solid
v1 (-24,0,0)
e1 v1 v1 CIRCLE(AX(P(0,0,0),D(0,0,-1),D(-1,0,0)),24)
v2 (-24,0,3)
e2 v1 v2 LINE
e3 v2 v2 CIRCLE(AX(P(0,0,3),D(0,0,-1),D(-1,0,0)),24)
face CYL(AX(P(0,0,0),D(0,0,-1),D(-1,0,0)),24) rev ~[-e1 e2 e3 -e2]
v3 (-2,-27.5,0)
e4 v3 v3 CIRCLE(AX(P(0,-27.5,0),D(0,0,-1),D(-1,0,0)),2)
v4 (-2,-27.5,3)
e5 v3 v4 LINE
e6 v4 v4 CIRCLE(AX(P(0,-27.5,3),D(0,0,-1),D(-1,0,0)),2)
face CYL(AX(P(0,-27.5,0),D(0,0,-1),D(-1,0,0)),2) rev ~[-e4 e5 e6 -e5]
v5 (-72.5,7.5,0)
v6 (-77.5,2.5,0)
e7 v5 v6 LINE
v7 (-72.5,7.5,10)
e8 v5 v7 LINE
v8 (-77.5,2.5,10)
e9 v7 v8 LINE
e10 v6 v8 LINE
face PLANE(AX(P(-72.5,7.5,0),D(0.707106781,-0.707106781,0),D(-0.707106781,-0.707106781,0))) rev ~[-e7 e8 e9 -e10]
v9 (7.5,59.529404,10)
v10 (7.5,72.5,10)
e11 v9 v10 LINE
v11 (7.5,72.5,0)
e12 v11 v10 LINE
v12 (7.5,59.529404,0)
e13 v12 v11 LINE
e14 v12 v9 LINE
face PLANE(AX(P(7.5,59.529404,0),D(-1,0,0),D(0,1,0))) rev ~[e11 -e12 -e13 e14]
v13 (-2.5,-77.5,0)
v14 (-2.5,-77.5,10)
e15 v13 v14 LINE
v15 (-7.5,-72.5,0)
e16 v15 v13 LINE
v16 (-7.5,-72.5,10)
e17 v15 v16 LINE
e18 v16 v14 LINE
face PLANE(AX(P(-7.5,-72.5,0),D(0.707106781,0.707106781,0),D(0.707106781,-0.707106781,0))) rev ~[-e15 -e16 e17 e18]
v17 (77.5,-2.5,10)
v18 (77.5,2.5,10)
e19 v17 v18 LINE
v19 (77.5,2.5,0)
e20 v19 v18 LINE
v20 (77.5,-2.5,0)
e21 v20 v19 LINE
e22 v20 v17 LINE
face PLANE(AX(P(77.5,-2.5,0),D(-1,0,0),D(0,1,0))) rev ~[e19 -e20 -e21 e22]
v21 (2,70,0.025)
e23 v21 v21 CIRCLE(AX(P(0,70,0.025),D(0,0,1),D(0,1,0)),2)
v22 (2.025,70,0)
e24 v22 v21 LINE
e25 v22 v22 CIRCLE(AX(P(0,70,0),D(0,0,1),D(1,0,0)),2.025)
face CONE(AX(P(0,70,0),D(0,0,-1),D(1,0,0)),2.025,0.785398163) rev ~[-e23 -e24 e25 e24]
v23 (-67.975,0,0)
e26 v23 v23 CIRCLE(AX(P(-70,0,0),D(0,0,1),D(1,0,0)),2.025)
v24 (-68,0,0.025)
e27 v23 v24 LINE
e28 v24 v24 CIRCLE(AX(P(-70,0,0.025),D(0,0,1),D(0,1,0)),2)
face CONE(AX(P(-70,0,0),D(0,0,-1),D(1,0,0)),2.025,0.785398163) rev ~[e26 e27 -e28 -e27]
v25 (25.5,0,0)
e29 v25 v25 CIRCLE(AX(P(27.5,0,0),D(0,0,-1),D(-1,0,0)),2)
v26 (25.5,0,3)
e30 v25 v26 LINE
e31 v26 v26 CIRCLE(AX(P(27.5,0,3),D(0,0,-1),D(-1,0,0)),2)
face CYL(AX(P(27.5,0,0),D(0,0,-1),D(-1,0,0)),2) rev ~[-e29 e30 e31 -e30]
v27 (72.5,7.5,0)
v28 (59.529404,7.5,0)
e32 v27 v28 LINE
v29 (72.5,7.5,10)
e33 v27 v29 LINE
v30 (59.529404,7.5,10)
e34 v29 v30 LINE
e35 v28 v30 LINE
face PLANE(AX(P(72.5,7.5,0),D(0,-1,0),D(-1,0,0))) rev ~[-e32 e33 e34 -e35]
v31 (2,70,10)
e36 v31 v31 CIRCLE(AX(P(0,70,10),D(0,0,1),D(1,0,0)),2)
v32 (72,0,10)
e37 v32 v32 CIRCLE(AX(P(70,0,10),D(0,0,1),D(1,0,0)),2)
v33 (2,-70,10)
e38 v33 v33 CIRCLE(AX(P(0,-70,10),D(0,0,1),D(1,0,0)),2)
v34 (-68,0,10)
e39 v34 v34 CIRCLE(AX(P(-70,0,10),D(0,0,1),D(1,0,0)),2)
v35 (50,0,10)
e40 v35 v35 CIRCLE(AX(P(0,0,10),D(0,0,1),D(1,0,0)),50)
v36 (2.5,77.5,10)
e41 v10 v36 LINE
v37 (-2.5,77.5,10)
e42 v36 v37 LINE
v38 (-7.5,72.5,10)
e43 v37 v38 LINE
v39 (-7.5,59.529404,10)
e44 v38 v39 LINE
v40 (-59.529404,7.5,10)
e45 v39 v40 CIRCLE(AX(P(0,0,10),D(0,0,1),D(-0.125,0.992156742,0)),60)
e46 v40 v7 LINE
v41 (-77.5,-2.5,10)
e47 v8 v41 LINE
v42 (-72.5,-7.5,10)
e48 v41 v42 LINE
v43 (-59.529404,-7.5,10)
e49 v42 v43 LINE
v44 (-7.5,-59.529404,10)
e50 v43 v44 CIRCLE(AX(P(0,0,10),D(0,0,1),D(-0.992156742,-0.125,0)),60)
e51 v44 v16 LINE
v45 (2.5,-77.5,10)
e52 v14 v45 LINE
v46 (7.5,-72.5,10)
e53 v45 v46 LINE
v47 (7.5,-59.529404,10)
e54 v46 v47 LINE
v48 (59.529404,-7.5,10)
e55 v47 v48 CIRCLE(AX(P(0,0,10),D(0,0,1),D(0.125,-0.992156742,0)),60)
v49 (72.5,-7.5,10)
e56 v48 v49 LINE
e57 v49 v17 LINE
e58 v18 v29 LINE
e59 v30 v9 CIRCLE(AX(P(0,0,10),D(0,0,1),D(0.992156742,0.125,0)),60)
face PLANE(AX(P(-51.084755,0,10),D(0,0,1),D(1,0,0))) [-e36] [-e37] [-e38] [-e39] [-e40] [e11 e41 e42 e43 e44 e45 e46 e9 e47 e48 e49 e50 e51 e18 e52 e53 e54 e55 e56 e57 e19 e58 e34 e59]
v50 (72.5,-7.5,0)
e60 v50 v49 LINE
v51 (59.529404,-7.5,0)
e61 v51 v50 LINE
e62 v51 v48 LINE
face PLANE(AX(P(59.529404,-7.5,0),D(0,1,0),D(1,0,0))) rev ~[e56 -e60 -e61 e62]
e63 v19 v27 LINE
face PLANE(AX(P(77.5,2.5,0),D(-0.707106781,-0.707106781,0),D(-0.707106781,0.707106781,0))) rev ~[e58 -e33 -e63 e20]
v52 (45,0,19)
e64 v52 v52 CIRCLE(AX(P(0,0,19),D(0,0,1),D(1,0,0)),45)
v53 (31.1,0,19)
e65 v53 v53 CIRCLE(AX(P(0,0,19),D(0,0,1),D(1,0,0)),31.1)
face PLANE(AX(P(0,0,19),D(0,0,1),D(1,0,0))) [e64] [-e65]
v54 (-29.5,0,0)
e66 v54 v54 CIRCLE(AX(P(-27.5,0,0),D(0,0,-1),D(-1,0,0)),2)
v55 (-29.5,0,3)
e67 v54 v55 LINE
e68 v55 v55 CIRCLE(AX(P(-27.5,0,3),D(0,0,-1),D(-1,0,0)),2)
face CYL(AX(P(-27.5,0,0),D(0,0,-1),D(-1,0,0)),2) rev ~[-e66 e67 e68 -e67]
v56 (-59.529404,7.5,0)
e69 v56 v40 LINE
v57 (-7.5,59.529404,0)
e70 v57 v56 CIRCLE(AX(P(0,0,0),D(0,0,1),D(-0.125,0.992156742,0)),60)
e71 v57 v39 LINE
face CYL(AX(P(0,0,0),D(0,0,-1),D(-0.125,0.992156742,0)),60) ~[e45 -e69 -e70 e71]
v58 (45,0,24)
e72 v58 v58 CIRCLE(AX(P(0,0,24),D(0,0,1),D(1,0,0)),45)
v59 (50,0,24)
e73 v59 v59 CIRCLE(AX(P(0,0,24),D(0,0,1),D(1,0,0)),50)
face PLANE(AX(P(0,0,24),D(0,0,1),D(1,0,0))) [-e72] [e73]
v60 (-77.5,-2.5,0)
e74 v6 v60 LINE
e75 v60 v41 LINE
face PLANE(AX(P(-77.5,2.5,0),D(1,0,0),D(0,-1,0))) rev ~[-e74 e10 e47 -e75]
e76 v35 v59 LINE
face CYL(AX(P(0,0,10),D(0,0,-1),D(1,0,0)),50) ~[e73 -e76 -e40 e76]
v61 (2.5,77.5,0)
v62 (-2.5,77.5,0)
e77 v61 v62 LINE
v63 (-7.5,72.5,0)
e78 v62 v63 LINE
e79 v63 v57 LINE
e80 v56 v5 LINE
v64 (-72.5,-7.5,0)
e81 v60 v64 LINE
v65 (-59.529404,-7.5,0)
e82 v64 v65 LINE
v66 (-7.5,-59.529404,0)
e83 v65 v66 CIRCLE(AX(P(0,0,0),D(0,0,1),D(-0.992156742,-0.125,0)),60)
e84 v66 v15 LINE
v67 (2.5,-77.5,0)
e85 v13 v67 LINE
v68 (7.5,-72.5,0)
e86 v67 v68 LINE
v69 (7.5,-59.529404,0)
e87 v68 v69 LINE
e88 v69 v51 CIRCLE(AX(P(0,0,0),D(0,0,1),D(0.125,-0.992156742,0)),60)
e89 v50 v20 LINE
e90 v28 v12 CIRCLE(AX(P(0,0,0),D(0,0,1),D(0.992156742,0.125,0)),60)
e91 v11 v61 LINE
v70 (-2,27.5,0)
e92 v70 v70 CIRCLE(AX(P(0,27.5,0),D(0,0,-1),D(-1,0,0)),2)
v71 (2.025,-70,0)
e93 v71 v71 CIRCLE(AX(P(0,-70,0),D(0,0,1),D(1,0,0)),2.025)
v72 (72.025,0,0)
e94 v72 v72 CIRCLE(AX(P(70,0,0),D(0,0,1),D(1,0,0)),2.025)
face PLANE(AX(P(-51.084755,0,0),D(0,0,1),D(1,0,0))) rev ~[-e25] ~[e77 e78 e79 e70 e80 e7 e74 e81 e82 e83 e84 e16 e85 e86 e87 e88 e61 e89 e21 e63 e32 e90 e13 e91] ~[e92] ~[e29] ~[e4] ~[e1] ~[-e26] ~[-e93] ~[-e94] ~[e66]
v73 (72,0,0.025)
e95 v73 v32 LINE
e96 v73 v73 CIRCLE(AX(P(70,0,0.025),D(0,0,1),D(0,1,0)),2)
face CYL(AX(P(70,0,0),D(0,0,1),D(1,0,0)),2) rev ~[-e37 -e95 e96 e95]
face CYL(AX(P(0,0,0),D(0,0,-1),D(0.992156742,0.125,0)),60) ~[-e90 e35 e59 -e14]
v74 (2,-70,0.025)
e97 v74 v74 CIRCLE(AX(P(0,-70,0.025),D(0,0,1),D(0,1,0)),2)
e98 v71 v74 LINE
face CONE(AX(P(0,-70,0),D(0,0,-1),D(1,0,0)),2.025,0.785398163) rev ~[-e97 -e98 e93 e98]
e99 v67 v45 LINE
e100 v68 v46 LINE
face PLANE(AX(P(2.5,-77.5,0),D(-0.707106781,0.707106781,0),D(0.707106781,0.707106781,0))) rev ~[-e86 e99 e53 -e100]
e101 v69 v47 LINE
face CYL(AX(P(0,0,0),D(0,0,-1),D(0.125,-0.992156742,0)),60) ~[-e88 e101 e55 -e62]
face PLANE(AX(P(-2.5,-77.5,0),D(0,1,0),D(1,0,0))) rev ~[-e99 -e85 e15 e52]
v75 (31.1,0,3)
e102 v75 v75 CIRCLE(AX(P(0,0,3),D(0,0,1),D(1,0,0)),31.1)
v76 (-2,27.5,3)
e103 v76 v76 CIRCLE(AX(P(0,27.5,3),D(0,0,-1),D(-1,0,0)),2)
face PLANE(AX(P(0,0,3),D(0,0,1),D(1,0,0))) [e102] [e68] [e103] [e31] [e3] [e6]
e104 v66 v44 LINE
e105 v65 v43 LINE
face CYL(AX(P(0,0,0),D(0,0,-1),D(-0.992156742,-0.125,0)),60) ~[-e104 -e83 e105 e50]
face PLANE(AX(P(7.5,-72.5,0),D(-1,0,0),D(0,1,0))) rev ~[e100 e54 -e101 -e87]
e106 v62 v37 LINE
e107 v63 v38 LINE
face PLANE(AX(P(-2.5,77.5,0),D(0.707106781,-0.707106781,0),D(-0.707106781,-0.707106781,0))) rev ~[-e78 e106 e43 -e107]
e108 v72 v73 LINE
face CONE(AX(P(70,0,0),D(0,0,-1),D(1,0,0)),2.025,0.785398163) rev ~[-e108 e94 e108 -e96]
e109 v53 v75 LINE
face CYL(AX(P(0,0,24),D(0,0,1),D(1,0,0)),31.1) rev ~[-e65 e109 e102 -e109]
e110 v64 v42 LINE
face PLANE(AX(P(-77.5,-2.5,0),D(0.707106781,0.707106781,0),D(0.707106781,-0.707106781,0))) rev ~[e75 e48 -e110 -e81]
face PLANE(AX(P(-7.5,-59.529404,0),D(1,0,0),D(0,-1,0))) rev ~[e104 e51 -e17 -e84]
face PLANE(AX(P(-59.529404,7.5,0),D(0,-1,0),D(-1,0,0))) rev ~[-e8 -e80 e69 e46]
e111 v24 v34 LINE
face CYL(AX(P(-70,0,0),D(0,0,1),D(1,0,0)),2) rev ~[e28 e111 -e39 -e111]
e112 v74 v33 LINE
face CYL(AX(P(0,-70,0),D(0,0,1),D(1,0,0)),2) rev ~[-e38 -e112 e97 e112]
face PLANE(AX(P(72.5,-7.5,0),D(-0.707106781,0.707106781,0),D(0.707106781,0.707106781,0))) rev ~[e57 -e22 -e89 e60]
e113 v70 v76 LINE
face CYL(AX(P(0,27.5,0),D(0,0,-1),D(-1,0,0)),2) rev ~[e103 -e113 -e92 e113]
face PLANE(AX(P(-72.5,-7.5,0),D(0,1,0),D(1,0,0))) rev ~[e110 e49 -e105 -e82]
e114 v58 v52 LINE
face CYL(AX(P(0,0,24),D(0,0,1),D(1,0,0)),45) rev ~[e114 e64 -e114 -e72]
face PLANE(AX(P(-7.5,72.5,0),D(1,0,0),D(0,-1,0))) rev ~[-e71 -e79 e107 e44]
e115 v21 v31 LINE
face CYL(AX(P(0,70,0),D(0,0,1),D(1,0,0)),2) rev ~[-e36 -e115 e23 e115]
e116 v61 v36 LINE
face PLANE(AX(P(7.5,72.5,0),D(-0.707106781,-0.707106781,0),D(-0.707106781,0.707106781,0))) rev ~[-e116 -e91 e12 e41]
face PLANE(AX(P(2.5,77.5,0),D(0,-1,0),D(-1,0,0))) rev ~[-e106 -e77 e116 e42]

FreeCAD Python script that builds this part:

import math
import FreeCAD as App
import Part
import Sketcher

V = App.Vector
Q = App.Units.Quantity

doc = App.newDocument("Part")
body = doc.addObject("PartDesign::Body", "Body")

sketch1 = body.newObject("Sketcher::SketchObject", "Sketch")
sketch1.AttachmentSupport = (doc.getObject("XY_Plane"), [""])
sketch1.MapMode = "FlatFace"
sketch1.addGeometry([
    Part.ArcOfCircle(Part.Circle(V(0, 0, 0), V(0, 0, 1), 60), math.radians(-173), math.radians(-97)),
    Part.LineSegment(V(-8, -60, 0), V(-8, -72, 0)),
    Part.LineSegment(V(-8, -72, 0), V(-2, -78, 0)),
    Part.LineSegment(V(-2, -78, 0), V(2, -78, 0)),
    Part.LineSegment(V(2, -78, 0), V(8, -72, 0)),
    Part.LineSegment(V(8, -72, 0), V(8, -60, 0)),
    Part.ArcOfCircle(Part.Circle(V(0, 0, 0), V(0, 0, 1), 60), math.radians(-83), math.radians(-7)),
    Part.LineSegment(V(60, -8, 0), V(72, -8, 0)),
    Part.LineSegment(V(72, -8, 0), V(78, -2, 0)),
    Part.LineSegment(V(78, -2, 0), V(78, 2, 0)),
    Part.LineSegment(V(78, 2, 0), V(72, 8, 0)),
    Part.LineSegment(V(72, 8, 0), V(60, 8, 0)),
    Part.ArcOfCircle(Part.Circle(V(0, 0, 0), V(0, 0, 1), 60), math.radians(7), math.radians(83)),
    Part.LineSegment(V(8, 60, 0), V(8, 72, 0)),
    Part.LineSegment(V(8, 72, 0), V(2, 78, 0)),
    Part.LineSegment(V(2, 78, 0), V(-2, 78, 0)),
    Part.LineSegment(V(-2, 78, 0), V(-8, 72, 0)),
    Part.LineSegment(V(-8, 72, 0), V(-8, 60, 0)),
    Part.ArcOfCircle(Part.Circle(V(0, 0, 0), V(0, 0, 1), 60), math.radians(97), math.radians(173)),
    Part.LineSegment(V(-60, 8, 0), V(-72, 8, 0)),
    Part.LineSegment(V(-72, 8, 0), V(-78, 2, 0)),
    Part.LineSegment(V(-78, 2, 0), V(-78, -2, 0)),
    Part.LineSegment(V(-78, -2, 0), V(-72, -8, 0)),
    Part.LineSegment(V(-72, -8, 0), V(-60, -8, 0)),
], False)
sketch1.addConstraint([
    Sketcher.Constraint("Coincident", 0, 2, 1, 1),
    Sketcher.Constraint("Coincident", 1, 2, 2, 1),
    Sketcher.Constraint("Coincident", 2, 2, 3, 1),
    Sketcher.Constraint("Coincident", 3, 2, 4, 1),
    Sketcher.Constraint("Coincident", 4, 2, 5, 1),
    Sketcher.Constraint("Coincident", 5, 2, 6, 1),
    Sketcher.Constraint("Coincident", 6, 2, 7, 1),
    Sketcher.Constraint("Coincident", 7, 2, 8, 1),
    Sketcher.Constraint("Coincident", 8, 2, 9, 1),
    Sketcher.Constraint("Coincident", 9, 2, 10, 1),
    Sketcher.Constraint("Coincident", 10, 2, 11, 1),
    Sketcher.Constraint("Coincident", 11, 2, 12, 1),
    Sketcher.Constraint("Coincident", 12, 2, 13, 1),
    Sketcher.Constraint("Coincident", 13, 2, 14, 1),
    Sketcher.Constraint("Coincident", 14, 2, 15, 1),
    Sketcher.Constraint("Coincident", 15, 2, 16, 1),
    Sketcher.Constraint("Coincident", 16, 2, 17, 1),
    Sketcher.Constraint("Coincident", 17, 2, 18, 1),
    Sketcher.Constraint("Coincident", 18, 2, 19, 1),
    Sketcher.Constraint("Coincident", 19, 2, 20, 1),
    Sketcher.Constraint("Coincident", 20, 2, 21, 1),
    Sketcher.Constraint("Coincident", 21, 2, 22, 1),
    Sketcher.Constraint("Coincident", 22, 2, 23, 1),
    Sketcher.Constraint("Coincident", 23, 2, 0, 1),
    Sketcher.Constraint("Vertical", 1),
    Sketcher.Constraint("Horizontal", 3),
    Sketcher.Constraint("Vertical", 5),
    Sketcher.Constraint("Horizontal", 7),
    Sketcher.Constraint("Vertical", 9),
    Sketcher.Constraint("Horizontal", 11),
    Sketcher.Constraint("Vertical", 13),
    Sketcher.Constraint("Horizontal", 15),
    Sketcher.Constraint("Vertical", 17),
    Sketcher.Constraint("Horizontal", 19),
    Sketcher.Constraint("Vertical", 21),
    Sketcher.Constraint("Horizontal", 23),
    Sketcher.Constraint("Coincident", 0, 3, -1, 1),
    Sketcher.Constraint("Coincident", 6, 3, -1, 1),
    Sketcher.Constraint("Coincident", 12, 3, -1, 1),
    Sketcher.Constraint("Coincident", 18, 3, -1, 1),
    Sketcher.Constraint("Equal", 0, 6),
    Sketcher.Constraint("Equal", 6, 12),
    Sketcher.Constraint("Equal", 12, 18),
    Sketcher.Constraint("Symmetric", 1, 2, 13, 2, -1, 1),
    Sketcher.Constraint("Symmetric", 2, 2, 14, 2, -1, 1),
    Sketcher.Constraint("Symmetric", 4, 2, 16, 2, -1, 1),
    Sketcher.Constraint("Symmetric", 7, 2, 19, 2, -1, 1),
    Sketcher.Constraint("Symmetric", 8, 2, 20, 2, -1, 1),
    Sketcher.Constraint("Symmetric", 10, 2, 22, 2, -1, 1),
    Sketcher.Constraint("Symmetric", 1, 2, 4, 2, -2),
    Sketcher.Constraint("Symmetric", 10, 2, 19, 2, -2),
    Sketcher.Constraint("Perpendicular", 2, 4),
    Sketcher.Constraint("Parallel", 4, 8),
    Sketcher.Constraint("Perpendicular", 8, 10),
    Sketcher.Constraint("Perpendicular", 14, 16),
    Sketcher.Constraint("Perpendicular", 20, 22),
    Sketcher.Constraint("Horizontal", 9, 2, 20, 2),
    Sketcher.Constraint("Equal", 23, 1),
    Sketcher.Constraint("Equal", 15, 9),
    Sketcher.Constraint("Equal", 4, 8),
    Sketcher.Constraint("Radius", 0, Q("60 mm")),
    Sketcher.Constraint("DistanceX", 3, 1, 3, 2, Q("5 mm")),
    Sketcher.Constraint("DistanceX", 1, 2, 2, 2, Q("5 mm")),
    Sketcher.Constraint("DistanceY", 1, 2, -1, 1, Q("72.5 mm")),
])
pad1 = body.newObject("PartDesign::Pad", "Pad")
pad1.Profile = sketch1
pad1.Length = 10

sketch2 = body.newObject("Sketcher::SketchObject", "Sketch001")
sketch2.AttachmentSupport = (doc.getObject("XY_Plane"), [""])
sketch2.MapMode = "FlatFace"
sketch2.AttachmentOffset = App.Placement(V(0, 0, 10), App.Rotation())
sketch2.addGeometry(Part.Circle(V(0, 0, 0), V(0, 0, 1), 50), False)
sketch2.addConstraint([
    Sketcher.Constraint("Coincident", 0, 3, -1, 1),
    Sketcher.Constraint("Diameter", 0, Q("100 mm")),
])
pad2 = body.newObject("PartDesign::Pad", "Pad001")
pad2.Profile = sketch2
pad2.Length = 14

sketch3 = body.newObject("Sketcher::SketchObject", "Sketch002")
sketch3.AttachmentSupport = (doc.getObject("XY_Plane"), [""])
sketch3.MapMode = "FlatFace"
sketch3.AttachmentOffset = App.Placement(V(0, 0, 24), App.Rotation())
sketch3.addGeometry(Part.Circle(V(0, 0, 0), V(0, 0, 1), 31), False)
sketch3.addConstraint([
    Sketcher.Constraint("Coincident", 0, 3, -1, 1),
    Sketcher.Constraint("Diameter", 0, Q("62.2 mm")),
])
pocket1 = body.newObject("PartDesign::Pocket", "Pocket")
pocket1.Profile = sketch3
pocket1.Length = 21

sketch4 = body.newObject("Sketcher::SketchObject", "Sketch003")
sketch4.AttachmentSupport = (doc.getObject("XY_Plane"), [""])
sketch4.MapMode = "FlatFace"
sketch4.addGeometry([
    Part.Circle(V(70, 0, 0), V(0, 0, 1), 2),
    Part.Circle(V(0, 70, 0), V(0, 0, 1), 2),
    Part.Circle(V(-70, 0, 0), V(0, 0, 1), 2),
    Part.Circle(V(0, -70, 0), V(0, 0, 1), 2),
], False)
sketch4.addConstraint([
    Sketcher.Constraint("Equal", 0, 1),
    Sketcher.Constraint("Equal", 1, 2),
    Sketcher.Constraint("Equal", 2, 3),
    Sketcher.Constraint("Symmetric", 0, 3, 2, 3, -1, 1),
    Sketcher.Constraint("Symmetric", 1, 3, 3, 3, -1, 1),
    Sketcher.Constraint("PointOnObject", 0, 3, -1),
    Sketcher.Constraint("PointOnObject", 1, 3, -2),
    Sketcher.Constraint("Diameter", 0, Q("4 mm")),
    Sketcher.Constraint("DistanceX", -1, 1, 0, 3, Q("70 mm")),
    Sketcher.Constraint("DistanceY", -1, 1, 1, 3, Q("70 mm")),
])
doc.recompute()
hole = body.newObject("PartDesign::Hole", "Hole")
hole.Profile = sketch4
hole.ThreadType = "None"
hole.Diameter = 4
hole.DepthType = "ThroughAll"
hole.HoleCutType = "Countersink"
hole.HoleCutDiameter = 4.05
hole.HoleCutCountersinkAngle = 90
hole.Reversed = True

sketch5 = body.newObject("Sketcher::SketchObject", "Sketch004")
sketch5.AttachmentSupport = (doc.getObject("XY_Plane"), [""])
sketch5.MapMode = "FlatFace"
sketch5.AttachmentOffset = App.Placement(V(0, 0, 24), App.Rotation())
sketch5.addGeometry(Part.Circle(V(0, 0, 0), V(0, 0, 1), 45), False)
sketch5.addConstraint([
    Sketcher.Constraint("Coincident", 0, 3, -1, 1),
    Sketcher.Constraint("Diameter", 0, Q("90 mm")),
])
pocket2 = body.newObject("PartDesign::Pocket", "Pocket001")
pocket2.Profile = sketch5
pocket2.Length = 5

sketch6 = body.newObject("Sketcher::SketchObject", "Sketch005")
sketch6.AttachmentSupport = (doc.getObject("XY_Plane"), [""])
sketch6.MapMode = "FlatFace"
sketch6.addGeometry(Part.Circle(V(0, 0, 0), V(0, 0, 1), 24), False)
sketch6.addConstraint([
    Sketcher.Constraint("Coincident", 0, 3, -1, 1),
    Sketcher.Constraint("Diameter", 0, Q("48 mm")),
])
pocket3 = body.newObject("PartDesign::Pocket", "Pocket002")
pocket3.Profile = sketch6
pocket3.Length = 4
pocket3.Reversed = True

sketch7 = body.newObject("Sketcher::SketchObject", "Sketch006")
sketch7.AttachmentSupport = (doc.getObject("XY_Plane"), [""])
sketch7.MapMode = "FlatFace"
sketch7.addGeometry([
    Part.Circle(V(-27.5, 0, 0), V(0, 0, 1), 2),
    Part.Circle(V(0, -27.5, 0), V(0, 0, 1), 2),
    Part.Circle(V(27.5, 0, 0), V(0, 0, 1), 2),
    Part.Circle(V(0, 27.5, 0), V(0, 0, 1), 2),
], False)
sketch7.addConstraint([
    Sketcher.Constraint("Equal", 0, 1),
    Sketcher.Constraint("Equal", 1, 2),
    Sketcher.Constraint("Equal", 2, 3),
    Sketcher.Constraint("Symmetric", 0, 3, 2, 3, -1, 1),
    Sketcher.Constraint("Symmetric", 1, 3, 3, 3, -1, 1),
    Sketcher.Constraint("PointOnObject", 0, 3, -1),
    Sketcher.Constraint("PointOnObject", 1, 3, -2),
    Sketcher.Constraint("Diameter", 0, Q("4 mm")),
    Sketcher.Constraint("DistanceX", 0, 3, 2, 3, Q("55 mm")),
    Sketcher.Constraint("DistanceY", 1, 3, 3, 3, Q("55 mm")),
])
pocket4 = body.newObject("PartDesign::Pocket", "Pocket003")
pocket4.Profile = sketch7
pocket4.Length = 4
pocket4.Reversed = True

doc.recompute()
